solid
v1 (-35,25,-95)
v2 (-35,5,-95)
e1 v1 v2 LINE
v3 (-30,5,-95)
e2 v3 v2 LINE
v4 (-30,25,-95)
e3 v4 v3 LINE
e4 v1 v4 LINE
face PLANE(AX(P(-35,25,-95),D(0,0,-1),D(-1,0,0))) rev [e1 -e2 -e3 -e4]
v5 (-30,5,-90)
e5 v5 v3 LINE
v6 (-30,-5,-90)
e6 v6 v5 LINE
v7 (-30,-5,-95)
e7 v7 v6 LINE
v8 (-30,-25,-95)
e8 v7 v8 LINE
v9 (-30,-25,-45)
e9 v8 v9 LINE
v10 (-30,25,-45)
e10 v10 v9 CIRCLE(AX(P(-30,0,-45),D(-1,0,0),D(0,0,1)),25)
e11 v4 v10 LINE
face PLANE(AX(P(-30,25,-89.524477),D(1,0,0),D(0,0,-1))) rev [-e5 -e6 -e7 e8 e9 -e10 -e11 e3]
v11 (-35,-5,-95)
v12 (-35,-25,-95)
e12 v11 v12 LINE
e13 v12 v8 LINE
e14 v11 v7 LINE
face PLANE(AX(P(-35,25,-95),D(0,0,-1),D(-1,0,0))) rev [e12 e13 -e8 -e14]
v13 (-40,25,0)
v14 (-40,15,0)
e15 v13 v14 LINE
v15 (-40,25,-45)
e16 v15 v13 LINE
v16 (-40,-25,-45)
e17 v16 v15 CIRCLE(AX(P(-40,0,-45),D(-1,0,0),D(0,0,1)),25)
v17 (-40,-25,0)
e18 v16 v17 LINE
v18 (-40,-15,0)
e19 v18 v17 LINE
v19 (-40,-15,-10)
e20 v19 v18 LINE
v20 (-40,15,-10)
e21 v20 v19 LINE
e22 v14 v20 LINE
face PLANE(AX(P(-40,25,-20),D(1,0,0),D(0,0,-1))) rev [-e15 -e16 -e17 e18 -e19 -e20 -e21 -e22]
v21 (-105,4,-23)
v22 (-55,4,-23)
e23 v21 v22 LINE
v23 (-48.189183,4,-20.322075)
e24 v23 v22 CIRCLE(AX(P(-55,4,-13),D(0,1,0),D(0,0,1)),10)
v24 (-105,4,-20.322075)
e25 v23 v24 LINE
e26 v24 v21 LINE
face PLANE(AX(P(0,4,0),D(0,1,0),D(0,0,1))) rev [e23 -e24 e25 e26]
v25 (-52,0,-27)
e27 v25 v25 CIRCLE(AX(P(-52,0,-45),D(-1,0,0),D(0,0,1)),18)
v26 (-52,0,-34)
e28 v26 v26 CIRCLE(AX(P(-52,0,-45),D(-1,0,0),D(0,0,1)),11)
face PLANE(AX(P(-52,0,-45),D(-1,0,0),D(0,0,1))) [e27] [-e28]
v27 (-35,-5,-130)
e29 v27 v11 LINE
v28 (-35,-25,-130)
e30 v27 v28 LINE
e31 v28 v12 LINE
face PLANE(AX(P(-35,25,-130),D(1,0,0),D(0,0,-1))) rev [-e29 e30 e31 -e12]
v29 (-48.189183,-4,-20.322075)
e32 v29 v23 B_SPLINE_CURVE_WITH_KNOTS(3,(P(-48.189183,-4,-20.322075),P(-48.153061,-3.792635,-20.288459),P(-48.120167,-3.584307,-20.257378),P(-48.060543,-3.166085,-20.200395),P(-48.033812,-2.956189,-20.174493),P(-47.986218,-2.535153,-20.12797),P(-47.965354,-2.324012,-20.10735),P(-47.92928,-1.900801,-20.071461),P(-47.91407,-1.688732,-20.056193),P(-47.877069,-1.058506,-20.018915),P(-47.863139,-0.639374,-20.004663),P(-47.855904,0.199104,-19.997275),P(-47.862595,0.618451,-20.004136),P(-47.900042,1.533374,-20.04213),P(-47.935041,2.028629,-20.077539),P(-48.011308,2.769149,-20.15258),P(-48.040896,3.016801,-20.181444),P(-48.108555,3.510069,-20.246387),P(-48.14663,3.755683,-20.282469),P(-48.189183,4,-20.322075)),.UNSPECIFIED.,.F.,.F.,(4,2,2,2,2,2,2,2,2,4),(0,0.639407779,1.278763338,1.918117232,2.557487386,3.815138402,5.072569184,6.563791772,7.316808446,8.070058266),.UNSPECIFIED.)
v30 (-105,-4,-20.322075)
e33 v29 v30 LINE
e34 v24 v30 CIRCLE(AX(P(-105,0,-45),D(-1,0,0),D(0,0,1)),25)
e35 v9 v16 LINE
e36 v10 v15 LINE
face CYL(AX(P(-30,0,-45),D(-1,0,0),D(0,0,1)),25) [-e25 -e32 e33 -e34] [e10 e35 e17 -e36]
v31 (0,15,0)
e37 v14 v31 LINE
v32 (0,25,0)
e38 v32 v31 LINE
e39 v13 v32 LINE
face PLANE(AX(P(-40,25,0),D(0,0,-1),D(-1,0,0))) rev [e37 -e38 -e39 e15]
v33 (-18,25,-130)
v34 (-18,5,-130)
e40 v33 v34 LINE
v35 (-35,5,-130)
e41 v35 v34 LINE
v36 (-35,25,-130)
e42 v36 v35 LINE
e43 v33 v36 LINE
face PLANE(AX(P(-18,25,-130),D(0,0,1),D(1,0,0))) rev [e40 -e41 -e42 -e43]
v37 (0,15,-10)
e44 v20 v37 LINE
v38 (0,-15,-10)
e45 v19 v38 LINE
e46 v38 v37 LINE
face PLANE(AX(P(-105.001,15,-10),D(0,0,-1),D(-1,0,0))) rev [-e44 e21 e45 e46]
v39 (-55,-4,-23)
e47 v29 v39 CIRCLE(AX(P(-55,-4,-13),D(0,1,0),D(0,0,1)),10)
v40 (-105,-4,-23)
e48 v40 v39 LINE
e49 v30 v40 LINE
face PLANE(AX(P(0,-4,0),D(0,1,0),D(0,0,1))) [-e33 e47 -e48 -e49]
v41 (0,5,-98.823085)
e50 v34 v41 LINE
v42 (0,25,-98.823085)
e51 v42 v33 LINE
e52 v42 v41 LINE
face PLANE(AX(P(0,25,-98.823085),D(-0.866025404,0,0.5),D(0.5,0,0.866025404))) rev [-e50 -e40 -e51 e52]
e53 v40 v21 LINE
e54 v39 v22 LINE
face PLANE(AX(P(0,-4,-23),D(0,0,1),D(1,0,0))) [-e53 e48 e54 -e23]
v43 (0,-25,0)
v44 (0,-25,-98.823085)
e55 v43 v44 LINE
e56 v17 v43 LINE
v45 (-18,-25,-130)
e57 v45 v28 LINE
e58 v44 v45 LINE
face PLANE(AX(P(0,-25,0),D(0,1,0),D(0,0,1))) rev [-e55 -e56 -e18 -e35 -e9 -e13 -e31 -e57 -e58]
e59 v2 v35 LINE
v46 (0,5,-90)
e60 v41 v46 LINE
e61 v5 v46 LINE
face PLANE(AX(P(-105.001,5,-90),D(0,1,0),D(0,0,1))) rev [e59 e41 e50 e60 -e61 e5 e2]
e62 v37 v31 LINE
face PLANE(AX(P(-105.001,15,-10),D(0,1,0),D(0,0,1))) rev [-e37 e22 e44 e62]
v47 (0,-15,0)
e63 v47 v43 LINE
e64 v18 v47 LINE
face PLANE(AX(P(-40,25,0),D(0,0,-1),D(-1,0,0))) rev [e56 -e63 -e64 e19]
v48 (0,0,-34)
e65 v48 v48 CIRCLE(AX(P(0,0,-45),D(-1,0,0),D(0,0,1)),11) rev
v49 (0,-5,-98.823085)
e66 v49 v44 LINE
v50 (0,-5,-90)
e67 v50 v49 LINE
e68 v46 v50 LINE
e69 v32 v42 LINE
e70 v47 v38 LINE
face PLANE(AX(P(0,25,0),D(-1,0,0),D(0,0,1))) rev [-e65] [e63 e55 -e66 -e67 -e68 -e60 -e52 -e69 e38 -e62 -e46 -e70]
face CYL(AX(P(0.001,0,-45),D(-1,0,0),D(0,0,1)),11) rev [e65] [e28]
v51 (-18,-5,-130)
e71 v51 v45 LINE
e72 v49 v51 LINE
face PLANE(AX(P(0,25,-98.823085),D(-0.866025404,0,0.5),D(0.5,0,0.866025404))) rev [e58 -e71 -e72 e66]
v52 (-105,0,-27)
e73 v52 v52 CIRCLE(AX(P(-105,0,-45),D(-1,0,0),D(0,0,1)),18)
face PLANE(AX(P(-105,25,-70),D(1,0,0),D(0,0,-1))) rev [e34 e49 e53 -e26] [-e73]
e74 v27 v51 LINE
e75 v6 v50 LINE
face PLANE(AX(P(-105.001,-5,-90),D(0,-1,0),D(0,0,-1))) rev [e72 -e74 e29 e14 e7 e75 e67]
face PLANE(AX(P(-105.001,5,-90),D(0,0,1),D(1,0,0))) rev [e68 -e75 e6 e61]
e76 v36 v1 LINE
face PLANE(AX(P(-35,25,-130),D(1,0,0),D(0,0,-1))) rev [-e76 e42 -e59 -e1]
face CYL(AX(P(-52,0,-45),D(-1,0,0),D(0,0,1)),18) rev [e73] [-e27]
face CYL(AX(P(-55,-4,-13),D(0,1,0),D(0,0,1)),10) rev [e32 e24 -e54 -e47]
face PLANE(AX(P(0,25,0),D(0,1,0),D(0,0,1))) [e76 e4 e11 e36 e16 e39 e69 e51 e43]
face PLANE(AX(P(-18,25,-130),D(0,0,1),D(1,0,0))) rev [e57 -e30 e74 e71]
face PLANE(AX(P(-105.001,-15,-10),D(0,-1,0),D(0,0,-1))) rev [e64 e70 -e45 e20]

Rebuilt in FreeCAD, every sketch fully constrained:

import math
import FreeCAD as App
import Part
import Sketcher
Q = App.Units.Quantity

doc = App.newDocument("Part")
body = doc.addObject("PartDesign::Body", "Body")

sketch1 = doc.addObject("Sketcher::SketchObject", "Sketch")
body.addObject(sketch1)
sketch1.AttachmentSupport = (doc.XZ_Plane, [""])
sketch1.MapMode = "FlatFace"
sketch1.addGeometry([
    Part.LineSegment(App.Vector(0, 0, 0), App.Vector(0, -99, 0)),
    Part.LineSegment(App.Vector(0, -99, 0), App.Vector(-18, -130, 0)),
    Part.LineSegment(App.Vector(-18, -130, 0), App.Vector(-35, -130, 0)),
    Part.LineSegment(App.Vector(-35, -130, 0), App.Vector(-35, -95, 0)),
    Part.LineSegment(App.Vector(-35, -95, 0), App.Vector(-30, -95, 0)),
    Part.LineSegment(App.Vector(-30, -95, 0), App.Vector(-30, -70, 0)),
    Part.LineSegment(App.Vector(-30, -70, 0), App.Vector(-105, -70, 0)),
    Part.LineSegment(App.Vector(-105, -70, 0), App.Vector(-105, -20, 0)),
    Part.LineSegment(App.Vector(-105, -20, 0), App.Vector(-40, -20, 0)),
    Part.LineSegment(App.Vector(-40, -20, 0), App.Vector(-40, 0, 0)),
    Part.LineSegment(App.Vector(-40, 0, 0), App.Vector(0, 0, 0)),
], False)
sketch1.addConstraint([
    Sketcher.Constraint("Coincident", 0, 2, 1, 1),
    Sketcher.Constraint("Coincident", 1, 2, 2, 1),
    Sketcher.Constraint("Coincident", 2, 2, 3, 1),
    Sketcher.Constraint("Coincident", 3, 2, 4, 1),
    Sketcher.Constraint("Coincident", 4, 2, 5, 1),
    Sketcher.Constraint("Coincident", 5, 2, 6, 1),
    Sketcher.Constraint("Coincident", 6, 2, 7, 1),
    Sketcher.Constraint("Coincident", 7, 2, 8, 1),
    Sketcher.Constraint("Coincident", 8, 2, 9, 1),
    Sketcher.Constraint("Coincident", 9, 2, 10, 1),
    Sketcher.Constraint("Coincident", 10, 2, 0, 1),
    Sketcher.Constraint("Vertical", 0),
    Sketcher.Constraint("Horizontal", 2),
    Sketcher.Constraint("Vertical", 3),
    Sketcher.Constraint("Horizontal", 4),
    Sketcher.Constraint("Vertical", 5),
    Sketcher.Constraint("Horizontal", 6),
    Sketcher.Constraint("Vertical", 7),
    Sketcher.Constraint("Horizontal", 8),
    Sketcher.Constraint("Vertical", 9),
    Sketcher.Constraint("Horizontal", 10),
    Sketcher.Constraint("Coincident", 10, 2, -1, 1),
    Sketcher.Constraint("DistanceX", 2, 2, 2, 1, Q("17 mm")),
    Sketcher.Constraint("DistanceX", 4, 1, 4, 2, Q("5 mm")),
    Sketcher.Constraint("DistanceX", 6, 2, 6, 1, Q("75 mm")),
    Sketcher.Constraint("DistanceX", 8, 1, 8, 2, Q("65 mm")),
    Sketcher.Constraint("DistanceX", 10, 1, 10, 2, Q("40 mm")),
    Sketcher.Constraint("DistanceY", 3, 1, 3, 2, Q("35 mm")),
    Sketcher.Constraint("DistanceY", 5, 1, 5, 2, Q("25 mm")),
    Sketcher.Constraint("DistanceY", 7, 1, 7, 2, Q("50 mm")),
    Sketcher.Constraint("DistanceY", 9, 1, 9, 2, Q("20 mm")),
    Sketcher.Constraint("Angle", 1, Q("-120 deg")),
])
pad1 = doc.addObject("PartDesign::Pad", "Pad")
body.addObject(pad1)
pad1.Profile = sketch1
pad1.Length = 50
pad1.Midplane = True

sketch2 = doc.addObject("Sketcher::SketchObject", "Sketch001")
body.addObject(sketch2)
sketch2.AttachmentSupport = (doc.YZ_Plane, [""])
sketch2.MapMode = "FlatFace"
sketch2.addGeometry([
    Part.LineSegment(App.Vector(5, -90, 0), App.Vector(-5, -90, 0)),
    Part.LineSegment(App.Vector(-5, -90, 0), App.Vector(-5, -130, 0)),
    Part.LineSegment(App.Vector(-5, -130, 0), App.Vector(5, -130, 0)),
    Part.LineSegment(App.Vector(5, -130, 0), App.Vector(5, -90, 0)),
], False)
sketch2.addConstraint([
    Sketcher.Constraint("Coincident", 0, 2, 1, 1),
    Sketcher.Constraint("Coincident", 1, 2, 2, 1),
    Sketcher.Constraint("Coincident", 2, 2, 3, 1),
    Sketcher.Constraint("Coincident", 3, 2, 0, 1),
    Sketcher.Constraint("Horizontal", 0),
    Sketcher.Constraint("Vertical", 1),
    Sketcher.Constraint("Horizontal", 2),
    Sketcher.Constraint("Vertical", 3),
    Sketcher.Constraint("DistanceX", 0, 2, 0, 1, Q("10 mm")),
    Sketcher.Constraint("DistanceY", 1, 2, 1, 1, Q("40 mm")),
    Sketcher.Constraint("DistanceX", 0, 2, -1, 1, Q("5 mm")),
    Sketcher.Constraint("DistanceY", 0, 2, -1, 1, Q("90 mm")),
])
pocket1 = doc.addObject("PartDesign::Pocket", "Pocket")
body.addObject(pocket1)
pocket1.Profile = sketch2
pocket1.Length = 35

sketch3 = doc.addObject("Sketcher::SketchObject", "Sketch002")
body.addObject(sketch3)
sketch3.AttachmentSupport = (doc.YZ_Plane, [""])
sketch3.MapMode = "FlatFace"
sketch3.addGeometry([
    Part.LineSegment(App.Vector(15, 0, 0), App.Vector(-15, 0, 0)),
    Part.LineSegment(App.Vector(-15, 0, 0), App.Vector(-15, -10, 0)),
    Part.LineSegment(App.Vector(-15, -10, 0), App.Vector(15, -10, 0)),
    Part.LineSegment(App.Vector(15, -10, 0), App.Vector(15, 0, 0)),
], False)
sketch3.addConstraint([
    Sketcher.Constraint("Coincident", 0, 2, 1, 1),
    Sketcher.Constraint("Coincident", 1, 2, 2, 1),
    Sketcher.Constraint("Coincident", 2, 2, 3, 1),
    Sketcher.Constraint("Coincident", 3, 2, 0, 1),
    Sketcher.Constraint("Horizontal", 0),
    Sketcher.Constraint("Vertical", 1),
    Sketcher.Constraint("Horizontal", 2),
    Sketcher.Constraint("Vertical", 3),
    Sketcher.Constraint("Symmetric", 0, 2, 3, 2, -1, 1),
    Sketcher.Constraint("DistanceX", 0, 2, 0, 1, Q("30 mm")),
    Sketcher.Constraint("DistanceY", 1, 2, 1, 1, Q("10 mm")),
])
pocket2 = doc.addObject("PartDesign::Pocket", "Pocket001")
body.addObject(pocket2)
pocket2.Profile = sketch3
pocket2.Type = "UpToFirst"

sketch4 = doc.addObject("Sketcher::SketchObject", "Sketch003")
body.addObject(sketch4)
sketch4.AttachmentSupport = (doc.YZ_Plane, [""])
sketch4.MapMode = "FlatFace"
sketch4.AttachmentOffset = App.Placement(App.Vector(0, 0, -105), App.Rotation())
sketch4.addGeometry([
    Part.LineSegment(App.Vector(-25, -70, 0), App.Vector(-25, -45, 0)),
    Part.ArcOfCircle(Part.Circle(App.Vector(0, -45, 0), App.Vector(0, 0, 1), 25), math.radians(180), math.radians(270)),
    Part.LineSegment(App.Vector(0, -70, 0), App.Vector(-25, -70, 0)),
    Part.LineSegment(App.Vector(25, -70, 0), App.Vector(0, -70, 0)),
    Part.ArcOfCircle(Part.Circle(App.Vector(0, -45, 0), App.Vector(0, 0, 1), 25), math.radians(-90), math.radians(0)),
    Part.LineSegment(App.Vector(25, -45, 0), App.Vector(25, -70, 0)),
], False)
sketch4.addConstraint([
    Sketcher.Constraint("Tangent", 0, 2, 1, 1),
    Sketcher.Constraint("Tangent", 1, 2, 2, 1),
    Sketcher.Constraint("Coincident", 2, 2, 0, 1),
    Sketcher.Constraint("Tangent", 3, 2, 4, 1),
    Sketcher.Constraint("Tangent", 4, 2, 5, 1),
    Sketcher.Constraint("Coincident", 5, 2, 3, 1),
    Sketcher.Constraint("Vertical", 0),
    Sketcher.Constraint("Horizontal", 2),
    Sketcher.Constraint("Horizontal", 3),
    Sketcher.Constraint("Vertical", 5),
    Sketcher.Constraint("Coincident", 4, 3, 1, 3),
    Sketcher.Constraint("Equal", 1, 4),
    Sketcher.Constraint("PointOnObject", 1, 3, -2),
    Sketcher.Constraint("Radius", 1, Q("25 mm")),
    Sketcher.Constraint("DistanceY", 1, 3, -1, 1, Q("45 mm")),
])
pocket3 = doc.addObject("PartDesign::Pocket", "Pocket002")
body.addObject(pocket3)
pocket3.Profile = sketch4
pocket3.Length = 75
pocket3.Reversed = True

sketch5 = doc.addObject("Sketcher::SketchObject", "Sketch004")
body.addObject(sketch5)
sketch5.AttachmentSupport = (doc.YZ_Plane, [""])
sketch5.MapMode = "FlatFace"
sketch5.AttachmentOffset = App.Placement(App.Vector(0, 0, -105), App.Rotation())
sketch5.addGeometry([
    Part.ArcOfCircle(Part.Circle(App.Vector(0, -45, 0), App.Vector(0, 0, 1), 25), math.radians(90), math.radians(180)),
    Part.LineSegment(App.Vector(-25, -45, 0), App.Vector(-25, -20, 0)),
    Part.LineSegment(App.Vector(-25, -20, 0), App.Vector(0, -20, 0)),
    Part.ArcOfCircle(Part.Circle(App.Vector(0, -45, 0), App.Vector(0, 0, 1), 25), math.radians(0), math.radians(90)),
    Part.LineSegment(App.Vector(0, -20, 0), App.Vector(25, -20, 0)),
    Part.LineSegment(App.Vector(25, -20, 0), App.Vector(25, -45, 0)),
], False)
sketch5.addConstraint([
    Sketcher.Constraint("Tangent", 0, 2, 1, 1),
    Sketcher.Constraint("Coincident", 1, 2, 2, 1),
    Sketcher.Constraint("Tangent", 2, 2, 0, 1),
    Sketcher.Constraint("Tangent", 3, 2, 4, 1),
    Sketcher.Constraint("Coincident", 4, 2, 5, 1),
    Sketcher.Constraint("Tangent", 5, 2, 3, 1),
    Sketcher.Constraint("Vertical", 1),
    Sketcher.Constraint("Horizontal", 2),
    Sketcher.Constraint("Horizontal", 4),
    Sketcher.Constraint("Vertical", 5),
    Sketcher.Constraint("Coincident", 3, 3, 0, 3),
    Sketcher.Constraint("Equal", 0, 3),
    Sketcher.Constraint("PointOnObject", 0, 3, -2),
    Sketcher.Constraint("Radius", 0, Q("25 mm")),
    Sketcher.Constraint("DistanceY", 0, 3, -1, 1, Q("45 mm")),
])
pocket4 = doc.addObject("PartDesign::Pocket", "Pocket003")
body.addObject(pocket4)
pocket4.Profile = sketch5
pocket4.Length = 65
pocket4.Reversed = True

sketch6 = doc.addObject("Sketcher::SketchObject", "Sketch005")
body.addObject(sketch6)
sketch6.AttachmentSupport = (doc.XZ_Plane, [""])
sketch6.MapMode = "FlatFace"
sketch6.addGeometry([
    Part.LineSegment(App.Vector(-105, -23, 0), App.Vector(-105, -20, 0)),
    Part.LineSegment(App.Vector(-105, -20, 0), App.Vector(-47.9, -20, 0)),
    Part.ArcOfCircle(Part.Circle(App.Vector(-55, -13, 0), App.Vector(0, 0, 1), 10), math.radians(-90), math.radians(-44)),
    Part.LineSegment(App.Vector(-55, -23, 0), App.Vector(-105, -23, 0)),
], False)
sketch6.addConstraint([
    Sketcher.Constraint("Coincident", 0, 2, 1, 1),
    Sketcher.Constraint("Coincident", 1, 2, 2, 2),
    Sketcher.Constraint("Tangent", 2, 1, 3, 1),
    Sketcher.Constraint("Coincident", 3, 2, 0, 1),
    Sketcher.Constraint("Vertical", 0),
    Sketcher.Constraint("Horizontal", 1),
    Sketcher.Constraint("Horizontal", 3),
    Sketcher.Constraint("Radius", 2, Q("10 mm")),
    Sketcher.Constraint("DistanceX", 3, 2, 3, 1, Q("50 mm")),
    Sketcher.Constraint("DistanceY", 0, 1, 0, 2, Q("3 mm")),
    Sketcher.Constraint("DistanceX", 2, 3, -1, 1, Q("55 mm")),
    Sketcher.Constraint("DistanceY", 2, 3, -1, 1, Q("13 mm")),
])
pocket5 = doc.addObject("PartDesign::Pocket", "Pocket004")
body.addObject(pocket5)
pocket5.Profile = sketch6
pocket5.Length = 8
pocket5.Midplane = True

sketch7 = doc.addObject("Sketcher::SketchObject", "Sketch006")
body.addObject(sketch7)
sketch7.AttachmentSupport = (doc.YZ_Plane, [""])
sketch7.MapMode = "FlatFace"
sketch7.AttachmentOffset = App.Placement(App.Vector(0, 0, -105), App.Rotation())
sketch7.addGeometry(Part.Circle(App.Vector(0, -45, 0), App.Vector(0, 0, 1), 18), False)
sketch7.addConstraint([
    Sketcher.Constraint("PointOnObject", 0, 3, -2),
    Sketcher.Constraint("Diameter", 0, Q("36 mm")),
    Sketcher.Constraint("DistanceY", 0, 3, -1, 1, Q("45 mm")),
])
pocket6 = doc.addObject("PartDesign::Pocket", "Pocket005")
body.addObject(pocket6)
pocket6.Profile = sketch7
pocket6.Length = 53
pocket6.Reversed = True

sketch8 = doc.addObject("Sketcher::SketchObject", "Sketch007")
body.addObject(sketch8)
sketch8.AttachmentSupport = (doc.YZ_Plane, [""])
sketch8.MapMode = "FlatFace"
sketch8.AttachmentOffset = App.Placement(App.Vector(0, 0, -52), App.Rotation())
sketch8.addGeometry(Part.Circle(App.Vector(0, -45, 0), App.Vector(0, 0, 1), 11), False)
sketch8.addConstraint([
    Sketcher.Constraint("PointOnObject", 0, 3, -2),
    Sketcher.Constraint("Diameter", 0, Q("22 mm")),
    Sketcher.Constraint("DistanceY", 0, 3, -1, 1, Q("45 mm")),
])
pocket7 = doc.addObject("PartDesign::Pocket", "Pocket006")
body.addObject(pocket7)
pocket7.Profile = sketch8
pocket7.Type = "UpToFirst"
pocket7.Reversed = True

doc.recompute()
